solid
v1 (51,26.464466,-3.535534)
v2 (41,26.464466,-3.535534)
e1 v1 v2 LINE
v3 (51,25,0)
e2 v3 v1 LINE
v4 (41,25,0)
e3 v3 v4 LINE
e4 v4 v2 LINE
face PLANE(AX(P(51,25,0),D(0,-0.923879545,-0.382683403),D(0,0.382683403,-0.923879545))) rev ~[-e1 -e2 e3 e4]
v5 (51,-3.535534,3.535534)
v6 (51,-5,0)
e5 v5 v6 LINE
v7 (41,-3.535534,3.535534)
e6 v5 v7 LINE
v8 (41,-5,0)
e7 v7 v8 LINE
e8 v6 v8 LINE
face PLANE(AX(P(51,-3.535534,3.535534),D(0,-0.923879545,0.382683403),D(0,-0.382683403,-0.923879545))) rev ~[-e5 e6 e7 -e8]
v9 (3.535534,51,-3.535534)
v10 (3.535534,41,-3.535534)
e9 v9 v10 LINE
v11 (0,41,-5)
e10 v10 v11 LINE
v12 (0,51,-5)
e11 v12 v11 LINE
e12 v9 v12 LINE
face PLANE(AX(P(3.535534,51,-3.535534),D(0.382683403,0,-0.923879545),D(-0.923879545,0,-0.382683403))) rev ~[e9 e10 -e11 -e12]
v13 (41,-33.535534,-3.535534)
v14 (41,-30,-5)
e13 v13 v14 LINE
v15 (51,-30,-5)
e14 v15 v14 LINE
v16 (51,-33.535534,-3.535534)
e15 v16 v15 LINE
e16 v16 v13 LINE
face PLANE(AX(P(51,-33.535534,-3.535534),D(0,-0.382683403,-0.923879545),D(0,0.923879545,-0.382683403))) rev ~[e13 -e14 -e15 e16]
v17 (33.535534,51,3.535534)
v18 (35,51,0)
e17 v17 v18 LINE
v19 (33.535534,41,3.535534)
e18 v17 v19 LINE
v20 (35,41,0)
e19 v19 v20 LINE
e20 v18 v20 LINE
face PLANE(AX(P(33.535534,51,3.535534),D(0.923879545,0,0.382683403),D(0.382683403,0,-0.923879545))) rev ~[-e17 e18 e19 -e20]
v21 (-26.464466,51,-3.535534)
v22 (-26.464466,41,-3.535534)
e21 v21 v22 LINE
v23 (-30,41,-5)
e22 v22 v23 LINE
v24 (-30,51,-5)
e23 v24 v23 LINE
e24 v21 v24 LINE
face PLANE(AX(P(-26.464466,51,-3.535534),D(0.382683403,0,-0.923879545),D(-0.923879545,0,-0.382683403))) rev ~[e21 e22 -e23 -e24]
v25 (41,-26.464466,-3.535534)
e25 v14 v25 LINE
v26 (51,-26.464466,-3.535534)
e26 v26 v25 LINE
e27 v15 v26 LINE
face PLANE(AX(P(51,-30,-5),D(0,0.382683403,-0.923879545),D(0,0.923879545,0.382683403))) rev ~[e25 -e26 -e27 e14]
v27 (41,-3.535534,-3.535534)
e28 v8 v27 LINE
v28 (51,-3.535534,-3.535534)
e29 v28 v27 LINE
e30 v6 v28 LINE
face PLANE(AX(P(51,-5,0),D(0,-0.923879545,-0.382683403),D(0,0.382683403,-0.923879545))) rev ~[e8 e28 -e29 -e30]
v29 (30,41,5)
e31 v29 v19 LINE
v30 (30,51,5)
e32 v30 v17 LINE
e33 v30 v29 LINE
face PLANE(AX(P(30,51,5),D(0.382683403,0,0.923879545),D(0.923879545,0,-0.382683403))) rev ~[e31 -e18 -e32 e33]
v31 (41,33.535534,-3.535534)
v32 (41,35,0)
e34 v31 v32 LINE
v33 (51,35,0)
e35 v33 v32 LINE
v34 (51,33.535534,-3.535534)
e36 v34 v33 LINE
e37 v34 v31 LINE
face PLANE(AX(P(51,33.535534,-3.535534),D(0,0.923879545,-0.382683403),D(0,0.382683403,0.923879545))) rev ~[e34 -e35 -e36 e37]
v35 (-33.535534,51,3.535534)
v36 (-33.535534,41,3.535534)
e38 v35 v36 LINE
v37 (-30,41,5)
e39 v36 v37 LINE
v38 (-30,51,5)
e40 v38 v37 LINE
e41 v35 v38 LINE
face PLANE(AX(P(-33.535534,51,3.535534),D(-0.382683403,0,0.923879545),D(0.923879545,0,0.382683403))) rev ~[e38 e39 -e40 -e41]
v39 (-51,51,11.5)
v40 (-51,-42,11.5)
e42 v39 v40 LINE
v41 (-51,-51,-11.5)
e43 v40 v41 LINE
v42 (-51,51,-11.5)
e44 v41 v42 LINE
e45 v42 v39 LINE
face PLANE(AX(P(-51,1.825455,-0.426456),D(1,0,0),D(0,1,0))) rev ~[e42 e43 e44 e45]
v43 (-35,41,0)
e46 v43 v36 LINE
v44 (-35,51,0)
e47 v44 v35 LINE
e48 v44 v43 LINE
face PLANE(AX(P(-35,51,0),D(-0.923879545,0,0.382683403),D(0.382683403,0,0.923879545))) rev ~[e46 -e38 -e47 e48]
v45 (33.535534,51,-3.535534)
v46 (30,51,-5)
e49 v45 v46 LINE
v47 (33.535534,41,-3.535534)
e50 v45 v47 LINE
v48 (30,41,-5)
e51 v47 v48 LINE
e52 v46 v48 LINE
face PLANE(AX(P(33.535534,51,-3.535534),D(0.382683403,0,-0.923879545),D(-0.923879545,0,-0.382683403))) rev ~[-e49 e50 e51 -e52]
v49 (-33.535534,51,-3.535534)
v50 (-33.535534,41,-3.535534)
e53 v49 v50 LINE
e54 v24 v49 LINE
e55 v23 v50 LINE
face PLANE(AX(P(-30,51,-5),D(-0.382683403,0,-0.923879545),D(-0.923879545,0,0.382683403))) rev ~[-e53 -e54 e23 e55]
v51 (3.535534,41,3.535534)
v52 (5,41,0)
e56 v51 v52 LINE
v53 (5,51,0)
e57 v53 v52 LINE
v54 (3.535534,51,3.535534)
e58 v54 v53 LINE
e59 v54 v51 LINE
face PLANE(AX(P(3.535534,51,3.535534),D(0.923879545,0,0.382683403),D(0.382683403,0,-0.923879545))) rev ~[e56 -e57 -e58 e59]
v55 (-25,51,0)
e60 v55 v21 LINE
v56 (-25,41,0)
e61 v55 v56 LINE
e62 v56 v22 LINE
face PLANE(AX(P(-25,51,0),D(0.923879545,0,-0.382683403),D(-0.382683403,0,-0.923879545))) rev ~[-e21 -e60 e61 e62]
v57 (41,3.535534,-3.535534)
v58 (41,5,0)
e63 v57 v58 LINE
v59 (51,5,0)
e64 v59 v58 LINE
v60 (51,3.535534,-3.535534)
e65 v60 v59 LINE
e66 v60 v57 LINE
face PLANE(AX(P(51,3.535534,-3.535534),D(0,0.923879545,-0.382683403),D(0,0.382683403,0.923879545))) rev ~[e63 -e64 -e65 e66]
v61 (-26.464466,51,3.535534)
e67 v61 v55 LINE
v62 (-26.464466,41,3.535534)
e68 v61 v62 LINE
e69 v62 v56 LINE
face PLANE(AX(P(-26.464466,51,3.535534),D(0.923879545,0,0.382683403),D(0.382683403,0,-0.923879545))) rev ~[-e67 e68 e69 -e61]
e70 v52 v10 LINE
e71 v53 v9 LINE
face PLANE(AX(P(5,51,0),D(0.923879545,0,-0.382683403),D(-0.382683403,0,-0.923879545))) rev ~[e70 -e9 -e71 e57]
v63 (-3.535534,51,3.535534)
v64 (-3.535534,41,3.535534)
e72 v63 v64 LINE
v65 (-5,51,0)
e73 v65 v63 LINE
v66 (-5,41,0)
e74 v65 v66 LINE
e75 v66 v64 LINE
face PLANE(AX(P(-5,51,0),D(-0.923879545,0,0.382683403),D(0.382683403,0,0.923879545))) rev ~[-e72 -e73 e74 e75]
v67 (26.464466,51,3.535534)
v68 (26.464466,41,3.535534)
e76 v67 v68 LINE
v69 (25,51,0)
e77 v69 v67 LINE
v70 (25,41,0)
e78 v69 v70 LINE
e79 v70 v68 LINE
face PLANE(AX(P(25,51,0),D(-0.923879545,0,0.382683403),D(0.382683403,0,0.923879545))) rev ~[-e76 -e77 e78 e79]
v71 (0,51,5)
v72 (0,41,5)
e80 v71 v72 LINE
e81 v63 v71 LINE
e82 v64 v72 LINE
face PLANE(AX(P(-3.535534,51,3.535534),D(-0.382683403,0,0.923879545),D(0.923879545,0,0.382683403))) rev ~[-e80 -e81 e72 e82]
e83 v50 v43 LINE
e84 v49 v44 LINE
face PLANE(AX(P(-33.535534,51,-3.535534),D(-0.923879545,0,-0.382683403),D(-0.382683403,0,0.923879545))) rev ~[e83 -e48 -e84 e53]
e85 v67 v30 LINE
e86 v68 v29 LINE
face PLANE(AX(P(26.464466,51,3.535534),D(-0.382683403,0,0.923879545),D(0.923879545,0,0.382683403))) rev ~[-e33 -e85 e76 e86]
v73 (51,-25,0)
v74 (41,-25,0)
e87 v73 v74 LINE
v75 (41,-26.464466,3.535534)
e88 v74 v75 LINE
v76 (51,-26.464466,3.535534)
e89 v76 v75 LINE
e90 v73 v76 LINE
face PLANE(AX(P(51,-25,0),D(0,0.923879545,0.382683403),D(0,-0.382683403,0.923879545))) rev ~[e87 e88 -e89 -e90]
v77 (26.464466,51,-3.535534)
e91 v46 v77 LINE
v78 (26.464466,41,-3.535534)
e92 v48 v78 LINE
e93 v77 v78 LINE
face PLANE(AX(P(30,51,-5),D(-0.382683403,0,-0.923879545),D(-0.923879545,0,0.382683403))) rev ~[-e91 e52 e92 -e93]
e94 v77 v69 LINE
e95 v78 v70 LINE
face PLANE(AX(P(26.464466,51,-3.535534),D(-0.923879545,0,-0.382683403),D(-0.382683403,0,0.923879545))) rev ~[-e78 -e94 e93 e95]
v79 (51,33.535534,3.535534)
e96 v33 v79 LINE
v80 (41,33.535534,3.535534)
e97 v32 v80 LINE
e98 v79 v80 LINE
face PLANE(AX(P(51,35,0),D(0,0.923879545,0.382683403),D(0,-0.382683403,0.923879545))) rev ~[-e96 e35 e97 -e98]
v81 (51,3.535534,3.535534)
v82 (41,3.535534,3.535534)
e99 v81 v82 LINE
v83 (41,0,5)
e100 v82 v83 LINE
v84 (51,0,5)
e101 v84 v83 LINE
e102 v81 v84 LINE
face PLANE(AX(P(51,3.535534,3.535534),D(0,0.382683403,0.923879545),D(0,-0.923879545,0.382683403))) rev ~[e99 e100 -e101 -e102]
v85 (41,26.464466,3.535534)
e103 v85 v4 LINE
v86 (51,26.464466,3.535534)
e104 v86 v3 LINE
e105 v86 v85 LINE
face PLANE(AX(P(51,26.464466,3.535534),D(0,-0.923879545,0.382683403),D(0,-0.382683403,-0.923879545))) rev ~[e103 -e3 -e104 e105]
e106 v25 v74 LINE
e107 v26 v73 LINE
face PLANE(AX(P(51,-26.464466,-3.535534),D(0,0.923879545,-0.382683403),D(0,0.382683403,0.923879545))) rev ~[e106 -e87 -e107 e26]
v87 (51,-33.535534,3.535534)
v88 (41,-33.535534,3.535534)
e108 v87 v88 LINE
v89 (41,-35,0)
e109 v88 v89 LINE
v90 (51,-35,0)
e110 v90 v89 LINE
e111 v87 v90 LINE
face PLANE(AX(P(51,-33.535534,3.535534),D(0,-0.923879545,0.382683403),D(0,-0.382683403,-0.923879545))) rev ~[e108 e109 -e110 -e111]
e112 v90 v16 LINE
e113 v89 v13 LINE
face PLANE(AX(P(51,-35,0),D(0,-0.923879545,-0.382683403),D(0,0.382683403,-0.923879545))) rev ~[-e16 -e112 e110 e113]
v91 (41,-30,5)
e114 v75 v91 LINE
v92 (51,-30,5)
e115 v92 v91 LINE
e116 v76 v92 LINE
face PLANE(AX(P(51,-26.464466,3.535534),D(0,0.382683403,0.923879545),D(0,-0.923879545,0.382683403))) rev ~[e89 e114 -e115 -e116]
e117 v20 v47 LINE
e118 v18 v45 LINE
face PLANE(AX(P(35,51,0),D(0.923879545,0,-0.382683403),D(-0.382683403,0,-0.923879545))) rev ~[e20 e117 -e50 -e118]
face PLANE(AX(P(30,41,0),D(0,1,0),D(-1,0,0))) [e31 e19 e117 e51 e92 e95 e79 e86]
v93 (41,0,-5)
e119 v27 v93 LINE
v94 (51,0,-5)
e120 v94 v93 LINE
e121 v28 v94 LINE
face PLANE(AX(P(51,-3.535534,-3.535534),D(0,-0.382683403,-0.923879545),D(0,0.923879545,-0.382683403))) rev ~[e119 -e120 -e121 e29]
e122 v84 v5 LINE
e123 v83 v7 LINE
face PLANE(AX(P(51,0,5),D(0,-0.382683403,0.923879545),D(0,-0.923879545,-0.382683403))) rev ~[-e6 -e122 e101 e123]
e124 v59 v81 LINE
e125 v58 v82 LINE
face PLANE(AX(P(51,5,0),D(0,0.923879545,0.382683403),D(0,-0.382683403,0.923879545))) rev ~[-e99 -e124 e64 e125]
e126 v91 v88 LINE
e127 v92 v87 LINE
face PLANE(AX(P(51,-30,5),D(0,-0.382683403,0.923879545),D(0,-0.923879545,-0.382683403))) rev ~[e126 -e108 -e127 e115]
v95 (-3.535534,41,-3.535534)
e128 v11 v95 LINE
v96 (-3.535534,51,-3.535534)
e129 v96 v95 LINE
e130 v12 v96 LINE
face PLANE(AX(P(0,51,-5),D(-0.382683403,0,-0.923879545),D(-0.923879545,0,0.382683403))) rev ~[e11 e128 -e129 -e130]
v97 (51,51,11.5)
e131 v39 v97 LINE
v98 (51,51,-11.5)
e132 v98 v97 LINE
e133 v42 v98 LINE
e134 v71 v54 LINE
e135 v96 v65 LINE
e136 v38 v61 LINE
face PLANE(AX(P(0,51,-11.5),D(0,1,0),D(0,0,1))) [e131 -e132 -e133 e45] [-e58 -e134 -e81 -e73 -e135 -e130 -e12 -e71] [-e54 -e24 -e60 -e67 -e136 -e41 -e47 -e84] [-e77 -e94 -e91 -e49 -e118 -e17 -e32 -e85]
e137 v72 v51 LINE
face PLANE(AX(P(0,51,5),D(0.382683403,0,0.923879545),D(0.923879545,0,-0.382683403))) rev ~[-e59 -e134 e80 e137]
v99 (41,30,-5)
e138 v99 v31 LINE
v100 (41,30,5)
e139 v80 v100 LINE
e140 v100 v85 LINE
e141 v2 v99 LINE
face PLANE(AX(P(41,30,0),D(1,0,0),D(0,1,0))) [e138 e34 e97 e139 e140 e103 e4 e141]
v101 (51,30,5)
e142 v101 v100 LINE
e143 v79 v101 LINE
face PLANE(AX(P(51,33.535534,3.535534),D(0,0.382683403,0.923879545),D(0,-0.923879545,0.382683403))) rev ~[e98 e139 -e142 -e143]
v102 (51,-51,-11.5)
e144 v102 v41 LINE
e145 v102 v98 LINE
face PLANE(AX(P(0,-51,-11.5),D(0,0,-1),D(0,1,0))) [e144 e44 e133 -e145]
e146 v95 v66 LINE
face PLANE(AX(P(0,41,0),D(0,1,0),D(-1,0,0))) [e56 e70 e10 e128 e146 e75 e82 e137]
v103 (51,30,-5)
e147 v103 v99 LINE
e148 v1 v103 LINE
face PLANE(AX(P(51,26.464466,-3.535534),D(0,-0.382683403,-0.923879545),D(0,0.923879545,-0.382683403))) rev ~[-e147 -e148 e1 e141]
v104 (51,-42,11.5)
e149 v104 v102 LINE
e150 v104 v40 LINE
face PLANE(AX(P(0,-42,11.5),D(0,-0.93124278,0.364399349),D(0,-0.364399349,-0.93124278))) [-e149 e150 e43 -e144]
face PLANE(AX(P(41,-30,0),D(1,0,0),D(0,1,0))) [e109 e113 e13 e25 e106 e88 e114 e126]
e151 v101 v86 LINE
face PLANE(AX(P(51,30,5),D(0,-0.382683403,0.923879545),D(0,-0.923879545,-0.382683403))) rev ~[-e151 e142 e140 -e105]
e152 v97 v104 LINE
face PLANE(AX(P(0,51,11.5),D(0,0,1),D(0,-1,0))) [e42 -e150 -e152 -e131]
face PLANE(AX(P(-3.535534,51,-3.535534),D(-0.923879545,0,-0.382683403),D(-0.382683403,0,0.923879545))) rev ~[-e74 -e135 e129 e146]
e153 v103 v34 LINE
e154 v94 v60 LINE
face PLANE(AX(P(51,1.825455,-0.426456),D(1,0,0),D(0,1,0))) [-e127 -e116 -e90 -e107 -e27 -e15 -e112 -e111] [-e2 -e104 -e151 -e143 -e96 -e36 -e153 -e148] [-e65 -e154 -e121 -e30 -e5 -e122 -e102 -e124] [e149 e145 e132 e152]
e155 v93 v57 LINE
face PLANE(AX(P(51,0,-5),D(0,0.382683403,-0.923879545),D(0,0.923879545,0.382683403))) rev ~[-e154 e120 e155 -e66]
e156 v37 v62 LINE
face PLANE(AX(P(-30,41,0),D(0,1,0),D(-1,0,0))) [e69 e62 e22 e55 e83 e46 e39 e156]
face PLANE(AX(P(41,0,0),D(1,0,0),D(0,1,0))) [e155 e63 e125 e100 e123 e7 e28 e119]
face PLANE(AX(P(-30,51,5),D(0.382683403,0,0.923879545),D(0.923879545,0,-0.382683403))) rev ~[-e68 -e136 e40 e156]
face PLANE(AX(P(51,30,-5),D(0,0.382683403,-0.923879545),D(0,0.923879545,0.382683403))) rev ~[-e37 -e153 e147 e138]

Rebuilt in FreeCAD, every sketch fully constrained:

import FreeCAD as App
import Part
import Sketcher

V = App.Vector
Q = App.Units.Quantity

doc = App.newDocument("Part")
params = doc.addObject("Spreadsheet::Sheet", "Params")
for row, (alias, value) in enumerate([
    ("sketch1_width", "102 mm"),
    ("sketch1_width2", "93 mm"),
    ("sketch1_height", "23 mm"),
    ("pad1_length", "102 mm"),
    ("pocket1_length", "10 mm"),
    ("pocket2_length", "10 mm"),
], start=1):
    params.set(f"A{row}", alias)
    params.set(f"B{row}", "=" + value)
    params.setAlias(f"B{row}", alias)

body = doc.addObject("PartDesign::Body", "Body")

# Sketch on YZ plane
sketch1 = body.newObject("Sketcher::SketchObject", "Sketch")
sketch1.AttachmentSupport = (doc.getObject("YZ_Plane"), [""])
sketch1.MapMode = "FlatFace"
sketch1.addGeometry([
    Part.LineSegment(V(-51, -12, 0), V(51, -12, 0)),
    Part.LineSegment(V(51, -12, 0), V(51, 12, 0)),
    Part.LineSegment(V(51, 12, 0), V(-42, 12, 0)),
    Part.LineSegment(V(-42, 12, 0), V(-51, -12, 0)),
], False)
sketch1.addConstraint([
    Sketcher.Constraint("Coincident", 0, 2, 1, 1),
    Sketcher.Constraint("Coincident", 1, 2, 2, 1),
    Sketcher.Constraint("Coincident", 2, 2, 3, 1),
    Sketcher.Constraint("Coincident", 3, 2, 0, 1),
    Sketcher.Constraint("Horizontal", 0),
    Sketcher.Constraint("Vertical", 1),
    Sketcher.Constraint("Horizontal", 2),
    Sketcher.Constraint("Symmetric", 1, 2, 3, 2, -1, 1),
    Sketcher.Constraint("DistanceX", 0, 1, 0, 2, Q("102 mm")),
    Sketcher.Constraint("DistanceX", 2, 2, 2, 1, Q("93 mm")),
    Sketcher.Constraint("DistanceY", 1, 1, 1, 2, Q("23 mm")),
])
sketch1.setExpression("Constraints[8]", "Params.sketch1_width")
sketch1.setExpression("Constraints[9]", "Params.sketch1_width2")
sketch1.setExpression("Constraints[10]", "Params.sketch1_height")
pad1 = body.newObject("PartDesign::Pad", "Pad")
pad1.Profile = sketch1
pad1.setExpression("Length", "Params.pad1_length")
pad1.Midplane = True

# Sketch on YZ plane
sketch2 = body.newObject("Sketcher::SketchObject", "Sketch001")
sketch2.AttachmentSupport = (doc.getObject("YZ_Plane"), [""])
sketch2.MapMode = "FlatFace"
sketch2.AttachmentOffset = App.Placement(V(0, 0, 51), App.Rotation())
sketch2.addGeometry([
    Part.LineSegment(V(-3.5, -3.5, 0), V(0, -5, 0)),  # 0
    Part.LineSegment(V(0, -5, 0), V(3.5, -3.5, 0)),  # 1
    Part.LineSegment(V(3.5, -3.5, 0), V(5, 0, 0)),  # 2
    Part.LineSegment(V(5, 0, 0), V(3.5, 3.5, 0)),  # 3
    Part.LineSegment(V(3.5, 3.5, 0), V(0, 5, 0)),  # 4
    Part.LineSegment(V(0, 5, 0), V(-3.5, 3.5, 0)),  # 5
    Part.LineSegment(V(-3.5, 3.5, 0), V(-5, 0, 0)),  # 6
    Part.LineSegment(V(-5, 0, 0), V(-3.5, -3.5, 0)),  # 7
    Part.LineSegment(V(33.5, 3.5, 0), V(30, 5, 0)),  # 8
    Part.LineSegment(V(30, 5, 0), V(26.5, 3.5, 0)),  # 9
    Part.LineSegment(V(26.5, 3.5, 0), V(25, 0, 0)),  # 10
    Part.LineSegment(V(25, 0, 0), V(26.5, -3.5, 0)),  # 11
    Part.LineSegment(V(26.5, -3.5, 0), V(30, -5, 0)),  # 12
    Part.LineSegment(V(30, -5, 0), V(33.5, -3.5, 0)),  # 13
    Part.LineSegment(V(33.5, -3.5, 0), V(35, 0, 0)),  # 14
    Part.LineSegment(V(35, 0, 0), V(33.5, 3.5, 0)),  # 15
    Part.LineSegment(V(-25, 0, 0), V(-26.5, 3.5, 0)),  # 16
    Part.LineSegment(V(-26.5, 3.5, 0), V(-30, 5, 0)),  # 17
    Part.LineSegment(V(-30, 5, 0), V(-33.5, 3.5, 0)),  # 18
    Part.LineSegment(V(-33.5, 3.5, 0), V(-35, 0, 0)),  # 19
    Part.LineSegment(V(-35, 0, 0), V(-33.5, -3.5, 0)),  # 20
    Part.LineSegment(V(-33.5, -3.5, 0), V(-30, -5, 0)),  # 21
    Part.LineSegment(V(-30, -5, 0), V(-26.5, -3.5, 0)),  # 22
    Part.LineSegment(V(-26.5, -3.5, 0), V(-25, 0, 0)),  # 23
], False)
sketch2.addConstraint([
    Sketcher.Constraint("Coincident", 0, 2, 1, 1),
    Sketcher.Constraint("Coincident", 1, 2, 2, 1),
    Sketcher.Constraint("Coincident", 2, 2, 3, 1),
    Sketcher.Constraint("Coincident", 3, 2, 4, 1),
    Sketcher.Constraint("Coincident", 4, 2, 5, 1),
    Sketcher.Constraint("Coincident", 5, 2, 6, 1),
    Sketcher.Constraint("Coincident", 6, 2, 7, 1),
    Sketcher.Constraint("Coincident", 7, 2, 0, 1),
    Sketcher.Constraint("Coincident", 8, 2, 9, 1),
    Sketcher.Constraint("Coincident", 9, 2, 10, 1),
    Sketcher.Constraint("Coincident", 10, 2, 11, 1),
    Sketcher.Constraint("Coincident", 11, 2, 12, 1),
    Sketcher.Constraint("Coincident", 12, 2, 13, 1),
    Sketcher.Constraint("Coincident", 13, 2, 14, 1),
    Sketcher.Constraint("Coincident", 14, 2, 15, 1),
    Sketcher.Constraint("Coincident", 15, 2, 8, 1),
    Sketcher.Constraint("Coincident", 16, 2, 17, 1),
    Sketcher.Constraint("Coincident", 17, 2, 18, 1),
    Sketcher.Constraint("Coincident", 18, 2, 19, 1),
    Sketcher.Constraint("Coincident", 19, 2, 20, 1),
    Sketcher.Constraint("Coincident", 20, 2, 21, 1),
    Sketcher.Constraint("Coincident", 21, 2, 22, 1),
    Sketcher.Constraint("Coincident", 22, 2, 23, 1),
    Sketcher.Constraint("Coincident", 23, 2, 16, 1),
    Sketcher.Constraint("Symmetric", 0, 2, 4, 2, -1, 1),
    Sketcher.Constraint("Symmetric", 1, 2, 5, 2, -1, 1),
    Sketcher.Constraint("Symmetric", 2, 2, 6, 2, -1, 1),
    Sketcher.Constraint("Symmetric", 3, 2, 7, 2, -1, 1),
    Sketcher.Constraint("Symmetric", 11, 2, 16, 2, -1, 1),
    Sketcher.Constraint("Symmetric", 12, 2, 17, 2, -1, 1),
    Sketcher.Constraint("Symmetric", 13, 2, 18, 2, -1, 1),
    Sketcher.Constraint("Symmetric", 14, 2, 19, 2, -1, 1),
    Sketcher.Constraint("Symmetric", 15, 2, 20, 2, -1, 1),
    Sketcher.Constraint("Symmetric", 8, 2, 21, 2, -1, 1),
    Sketcher.Constraint("Symmetric", 9, 2, 22, 2, -1, 1),
    Sketcher.Constraint("Symmetric", 10, 2, 23, 2, -1, 1),
    Sketcher.Constraint("Symmetric", 3, 2, 5, 2, -2),
    Sketcher.Constraint("Symmetric", 9, 2, 16, 2, -2),
    Sketcher.Constraint("Symmetric", 8, 2, 17, 2, -2),
    Sketcher.Constraint("Symmetric", 15, 2, 18, 2, -2),
    Sketcher.Constraint("PointOnObject", 0, 2, -2),
    Sketcher.Constraint("PointOnObject", 2, 2, -1),
    Sketcher.Constraint("PointOnObject", 10, 2, -1),
    Sketcher.Constraint("PointOnObject", 14, 2, -1),
    Sketcher.Constraint("Perpendicular", 0, 2),
    Sketcher.Constraint("Perpendicular", 6, 8),
    Sketcher.Constraint("Perpendicular", 7, 9),
    Sketcher.Constraint("Perpendicular", 8, 10),
    Sketcher.Constraint("Perpendicular", 12, 14),
    Sketcher.Constraint("Horizontal", 4, 2, 8, 2),
    Sketcher.Constraint("Horizontal", 5, 2, 9, 2),
    Sketcher.Constraint("Horizontal", 11, 2, 13, 2),
    Sketcher.Constraint("Equal", 1, 2),
    Sketcher.Constraint("DistanceY", 0, 2, -1, 1, Q("5 mm")),
    Sketcher.Constraint("DistanceX", -1, 1, 8, 2, Q("30 mm")),
    Sketcher.Constraint("Angle", 0, Q("-22.499998 deg")),
])
pocket1 = body.newObject("PartDesign::Pocket", "Pocket")
pocket1.Profile = sketch2
pocket1.setExpression("Length", "Params.pocket1_length")

# Sketch on XZ plane
sketch3 = body.newObject("Sketcher::SketchObject", "Sketch002")
sketch3.AttachmentSupport = (doc.getObject("XZ_Plane"), [""])
sketch3.MapMode = "FlatFace"
sketch3.AttachmentOffset = App.Placement(V(0, 0, -51), App.Rotation())
sketch3.addGeometry([
    Part.LineSegment(V(3.5, -3.5, 0), V(0, -5, 0)),  # 0
    Part.LineSegment(V(0, -5, 0), V(-3.5, -3.5, 0)),  # 1
    Part.LineSegment(V(-3.5, -3.5, 0), V(-5, 0, 0)),  # 2
    Part.LineSegment(V(-5, 0, 0), V(-3.5, 3.5, 0)),  # 3
    Part.LineSegment(V(-3.5, 3.5, 0), V(0, 5, 0)),  # 4
    Part.LineSegment(V(0, 5, 0), V(3.5, 3.5, 0)),  # 5
    Part.LineSegment(V(3.5, 3.5, 0), V(5, 0, 0)),  # 6
    Part.LineSegment(V(5, 0, 0), V(3.5, -3.5, 0)),  # 7
    Part.LineSegment(V(-33.5, 3.5, 0), V(-30, 5, 0)),  # 8
    Part.LineSegment(V(-30, 5, 0), V(-26.5, 3.5, 0)),  # 9
    Part.LineSegment(V(-26.5, 3.5, 0), V(-25, 0, 0)),  # 10
    Part.LineSegment(V(-25, 0, 0), V(-26.5, -3.5, 0)),  # 11
    Part.LineSegment(V(-26.5, -3.5, 0), V(-30, -5, 0)),  # 12
    Part.LineSegment(V(-30, -5, 0), V(-33.5, -3.5, 0)),  # 13
    Part.LineSegment(V(-33.5, -3.5, 0), V(-35, 0, 0)),  # 14
    Part.LineSegment(V(-35, 0, 0), V(-33.5, 3.5, 0)),  # 15
    Part.LineSegment(V(26.5, -3.5, 0), V(25, 0, 0)),  # 16
    Part.LineSegment(V(25, 0, 0), V(26.5, 3.5, 0)),  # 17
    Part.LineSegment(V(26.5, 3.5, 0), V(30, 5, 0)),  # 18
    Part.LineSegment(V(30, 5, 0), V(33.5, 3.5, 0)),  # 19
    Part.LineSegment(V(33.5, 3.5, 0), V(35, 0, 0)),  # 20
    Part.LineSegment(V(35, 0, 0), V(33.5, -3.5, 0)),  # 21
    Part.LineSegment(V(33.5, -3.5, 0), V(30, -5, 0)),  # 22
    Part.LineSegment(V(30, -5, 0), V(26.5, -3.5, 0)),  # 23
], False)
sketch3.addConstraint([
    Sketcher.Constraint("Coincident", 0, 2, 1, 1),
    Sketcher.Constraint("Coincident", 1, 2, 2, 1),
    Sketcher.Constraint("Coincident", 2, 2, 3, 1),
    Sketcher.Constraint("Coincident", 3, 2, 4, 1),
    Sketcher.Constraint("Coincident", 4, 2, 5, 1),
    Sketcher.Constraint("Coincident", 5, 2, 6, 1),
    Sketcher.Constraint("Coincident", 6, 2, 7, 1),
    Sketcher.Constraint("Coincident", 7, 2, 0, 1),
    Sketcher.Constraint("Coincident", 8, 2, 9, 1),
    Sketcher.Constraint("Coincident", 9, 2, 10, 1),
    Sketcher.Constraint("Coincident", 10, 2, 11, 1),
    Sketcher.Constraint("Coincident", 11, 2, 12, 1),
    Sketcher.Constraint("Coincident", 12, 2, 13, 1),
    Sketcher.Constraint("Coincident", 13, 2, 14, 1),
    Sketcher.Constraint("Coincident", 14, 2, 15, 1),
    Sketcher.Constraint("Coincident", 15, 2, 8, 1),
    Sketcher.Constraint("Coincident", 16, 2, 17, 1),
    Sketcher.Constraint("Coincident", 17, 2, 18, 1),
    Sketcher.Constraint("Coincident", 18, 2, 19, 1),
    Sketcher.Constraint("Coincident", 19, 2, 20, 1),
    Sketcher.Constraint("Coincident", 20, 2, 21, 1),
    Sketcher.Constraint("Coincident", 21, 2, 22, 1),
    Sketcher.Constraint("Coincident", 22, 2, 23, 1),
    Sketcher.Constraint("Coincident", 23, 2, 16, 1),
    Sketcher.Constraint("Symmetric", 0, 2, 4, 2, -1, 1),
    Sketcher.Constraint("Symmetric", 1, 2, 5, 2, -1, 1),
    Sketcher.Constraint("Symmetric", 2, 2, 6, 2, -1, 1),
    Sketcher.Constraint("Symmetric", 3, 2, 7, 2, -1, 1),
    Sketcher.Constraint("Symmetric", 10, 2, 16, 2, -1, 1),
    Sketcher.Constraint("Symmetric", 11, 2, 17, 2, -1, 1),
    Sketcher.Constraint("Symmetric", 12, 2, 18, 2, -1, 1),
    Sketcher.Constraint("Symmetric", 13, 2, 19, 2, -1, 1),
    Sketcher.Constraint("Symmetric", 14, 2, 20, 2, -1, 1),
    Sketcher.Constraint("Symmetric", 15, 2, 21, 2, -1, 1),
    Sketcher.Constraint("Symmetric", 8, 2, 22, 2, -1, 1),
    Sketcher.Constraint("Symmetric", 9, 2, 23, 2, -1, 1),
    Sketcher.Constraint("Symmetric", 3, 2, 5, 2, -2),
    Sketcher.Constraint("Symmetric", 9, 2, 17, 2, -2),
    Sketcher.Constraint("Symmetric", 8, 2, 18, 2, -2),
    Sketcher.Constraint("Symmetric", 15, 2, 19, 2, -2),
    Sketcher.Constraint("PointOnObject", 0, 2, -2),
    Sketcher.Constraint("PointOnObject", 2, 2, -1),
    Sketcher.Constraint("PointOnObject", 10, 2, -1),
    Sketcher.Constraint("PointOnObject", 14, 2, -1),
    Sketcher.Constraint("Perpendicular", 0, 2),
    Sketcher.Constraint("Perpendicular", 6, 8),
    Sketcher.Constraint("Perpendicular", 7, 9),
    Sketcher.Constraint("Perpendicular", 8, 10),
    Sketcher.Constraint("Perpendicular", 12, 14),
    Sketcher.Constraint("Horizontal", 4, 2, 8, 2),
    Sketcher.Constraint("Horizontal", 5, 2, 9, 2),
    Sketcher.Constraint("Horizontal", 11, 2, 13, 2),
    Sketcher.Constraint("Equal", 1, 2),
    Sketcher.Constraint("DistanceY", 0, 2, -1, 1, Q("5 mm")),
    Sketcher.Constraint("DistanceX", 8, 2, -1, 1, Q("30 mm")),
    Sketcher.Constraint("Angle", 0, Q("-157.500002 deg")),
])
pocket2 = body.newObject("PartDesign::Pocket", "Pocket001")
pocket2.Profile = sketch3
pocket2.setExpression("Length", "Params.pocket2_length")
pocket2.Reversed = True

doc.recompute()
